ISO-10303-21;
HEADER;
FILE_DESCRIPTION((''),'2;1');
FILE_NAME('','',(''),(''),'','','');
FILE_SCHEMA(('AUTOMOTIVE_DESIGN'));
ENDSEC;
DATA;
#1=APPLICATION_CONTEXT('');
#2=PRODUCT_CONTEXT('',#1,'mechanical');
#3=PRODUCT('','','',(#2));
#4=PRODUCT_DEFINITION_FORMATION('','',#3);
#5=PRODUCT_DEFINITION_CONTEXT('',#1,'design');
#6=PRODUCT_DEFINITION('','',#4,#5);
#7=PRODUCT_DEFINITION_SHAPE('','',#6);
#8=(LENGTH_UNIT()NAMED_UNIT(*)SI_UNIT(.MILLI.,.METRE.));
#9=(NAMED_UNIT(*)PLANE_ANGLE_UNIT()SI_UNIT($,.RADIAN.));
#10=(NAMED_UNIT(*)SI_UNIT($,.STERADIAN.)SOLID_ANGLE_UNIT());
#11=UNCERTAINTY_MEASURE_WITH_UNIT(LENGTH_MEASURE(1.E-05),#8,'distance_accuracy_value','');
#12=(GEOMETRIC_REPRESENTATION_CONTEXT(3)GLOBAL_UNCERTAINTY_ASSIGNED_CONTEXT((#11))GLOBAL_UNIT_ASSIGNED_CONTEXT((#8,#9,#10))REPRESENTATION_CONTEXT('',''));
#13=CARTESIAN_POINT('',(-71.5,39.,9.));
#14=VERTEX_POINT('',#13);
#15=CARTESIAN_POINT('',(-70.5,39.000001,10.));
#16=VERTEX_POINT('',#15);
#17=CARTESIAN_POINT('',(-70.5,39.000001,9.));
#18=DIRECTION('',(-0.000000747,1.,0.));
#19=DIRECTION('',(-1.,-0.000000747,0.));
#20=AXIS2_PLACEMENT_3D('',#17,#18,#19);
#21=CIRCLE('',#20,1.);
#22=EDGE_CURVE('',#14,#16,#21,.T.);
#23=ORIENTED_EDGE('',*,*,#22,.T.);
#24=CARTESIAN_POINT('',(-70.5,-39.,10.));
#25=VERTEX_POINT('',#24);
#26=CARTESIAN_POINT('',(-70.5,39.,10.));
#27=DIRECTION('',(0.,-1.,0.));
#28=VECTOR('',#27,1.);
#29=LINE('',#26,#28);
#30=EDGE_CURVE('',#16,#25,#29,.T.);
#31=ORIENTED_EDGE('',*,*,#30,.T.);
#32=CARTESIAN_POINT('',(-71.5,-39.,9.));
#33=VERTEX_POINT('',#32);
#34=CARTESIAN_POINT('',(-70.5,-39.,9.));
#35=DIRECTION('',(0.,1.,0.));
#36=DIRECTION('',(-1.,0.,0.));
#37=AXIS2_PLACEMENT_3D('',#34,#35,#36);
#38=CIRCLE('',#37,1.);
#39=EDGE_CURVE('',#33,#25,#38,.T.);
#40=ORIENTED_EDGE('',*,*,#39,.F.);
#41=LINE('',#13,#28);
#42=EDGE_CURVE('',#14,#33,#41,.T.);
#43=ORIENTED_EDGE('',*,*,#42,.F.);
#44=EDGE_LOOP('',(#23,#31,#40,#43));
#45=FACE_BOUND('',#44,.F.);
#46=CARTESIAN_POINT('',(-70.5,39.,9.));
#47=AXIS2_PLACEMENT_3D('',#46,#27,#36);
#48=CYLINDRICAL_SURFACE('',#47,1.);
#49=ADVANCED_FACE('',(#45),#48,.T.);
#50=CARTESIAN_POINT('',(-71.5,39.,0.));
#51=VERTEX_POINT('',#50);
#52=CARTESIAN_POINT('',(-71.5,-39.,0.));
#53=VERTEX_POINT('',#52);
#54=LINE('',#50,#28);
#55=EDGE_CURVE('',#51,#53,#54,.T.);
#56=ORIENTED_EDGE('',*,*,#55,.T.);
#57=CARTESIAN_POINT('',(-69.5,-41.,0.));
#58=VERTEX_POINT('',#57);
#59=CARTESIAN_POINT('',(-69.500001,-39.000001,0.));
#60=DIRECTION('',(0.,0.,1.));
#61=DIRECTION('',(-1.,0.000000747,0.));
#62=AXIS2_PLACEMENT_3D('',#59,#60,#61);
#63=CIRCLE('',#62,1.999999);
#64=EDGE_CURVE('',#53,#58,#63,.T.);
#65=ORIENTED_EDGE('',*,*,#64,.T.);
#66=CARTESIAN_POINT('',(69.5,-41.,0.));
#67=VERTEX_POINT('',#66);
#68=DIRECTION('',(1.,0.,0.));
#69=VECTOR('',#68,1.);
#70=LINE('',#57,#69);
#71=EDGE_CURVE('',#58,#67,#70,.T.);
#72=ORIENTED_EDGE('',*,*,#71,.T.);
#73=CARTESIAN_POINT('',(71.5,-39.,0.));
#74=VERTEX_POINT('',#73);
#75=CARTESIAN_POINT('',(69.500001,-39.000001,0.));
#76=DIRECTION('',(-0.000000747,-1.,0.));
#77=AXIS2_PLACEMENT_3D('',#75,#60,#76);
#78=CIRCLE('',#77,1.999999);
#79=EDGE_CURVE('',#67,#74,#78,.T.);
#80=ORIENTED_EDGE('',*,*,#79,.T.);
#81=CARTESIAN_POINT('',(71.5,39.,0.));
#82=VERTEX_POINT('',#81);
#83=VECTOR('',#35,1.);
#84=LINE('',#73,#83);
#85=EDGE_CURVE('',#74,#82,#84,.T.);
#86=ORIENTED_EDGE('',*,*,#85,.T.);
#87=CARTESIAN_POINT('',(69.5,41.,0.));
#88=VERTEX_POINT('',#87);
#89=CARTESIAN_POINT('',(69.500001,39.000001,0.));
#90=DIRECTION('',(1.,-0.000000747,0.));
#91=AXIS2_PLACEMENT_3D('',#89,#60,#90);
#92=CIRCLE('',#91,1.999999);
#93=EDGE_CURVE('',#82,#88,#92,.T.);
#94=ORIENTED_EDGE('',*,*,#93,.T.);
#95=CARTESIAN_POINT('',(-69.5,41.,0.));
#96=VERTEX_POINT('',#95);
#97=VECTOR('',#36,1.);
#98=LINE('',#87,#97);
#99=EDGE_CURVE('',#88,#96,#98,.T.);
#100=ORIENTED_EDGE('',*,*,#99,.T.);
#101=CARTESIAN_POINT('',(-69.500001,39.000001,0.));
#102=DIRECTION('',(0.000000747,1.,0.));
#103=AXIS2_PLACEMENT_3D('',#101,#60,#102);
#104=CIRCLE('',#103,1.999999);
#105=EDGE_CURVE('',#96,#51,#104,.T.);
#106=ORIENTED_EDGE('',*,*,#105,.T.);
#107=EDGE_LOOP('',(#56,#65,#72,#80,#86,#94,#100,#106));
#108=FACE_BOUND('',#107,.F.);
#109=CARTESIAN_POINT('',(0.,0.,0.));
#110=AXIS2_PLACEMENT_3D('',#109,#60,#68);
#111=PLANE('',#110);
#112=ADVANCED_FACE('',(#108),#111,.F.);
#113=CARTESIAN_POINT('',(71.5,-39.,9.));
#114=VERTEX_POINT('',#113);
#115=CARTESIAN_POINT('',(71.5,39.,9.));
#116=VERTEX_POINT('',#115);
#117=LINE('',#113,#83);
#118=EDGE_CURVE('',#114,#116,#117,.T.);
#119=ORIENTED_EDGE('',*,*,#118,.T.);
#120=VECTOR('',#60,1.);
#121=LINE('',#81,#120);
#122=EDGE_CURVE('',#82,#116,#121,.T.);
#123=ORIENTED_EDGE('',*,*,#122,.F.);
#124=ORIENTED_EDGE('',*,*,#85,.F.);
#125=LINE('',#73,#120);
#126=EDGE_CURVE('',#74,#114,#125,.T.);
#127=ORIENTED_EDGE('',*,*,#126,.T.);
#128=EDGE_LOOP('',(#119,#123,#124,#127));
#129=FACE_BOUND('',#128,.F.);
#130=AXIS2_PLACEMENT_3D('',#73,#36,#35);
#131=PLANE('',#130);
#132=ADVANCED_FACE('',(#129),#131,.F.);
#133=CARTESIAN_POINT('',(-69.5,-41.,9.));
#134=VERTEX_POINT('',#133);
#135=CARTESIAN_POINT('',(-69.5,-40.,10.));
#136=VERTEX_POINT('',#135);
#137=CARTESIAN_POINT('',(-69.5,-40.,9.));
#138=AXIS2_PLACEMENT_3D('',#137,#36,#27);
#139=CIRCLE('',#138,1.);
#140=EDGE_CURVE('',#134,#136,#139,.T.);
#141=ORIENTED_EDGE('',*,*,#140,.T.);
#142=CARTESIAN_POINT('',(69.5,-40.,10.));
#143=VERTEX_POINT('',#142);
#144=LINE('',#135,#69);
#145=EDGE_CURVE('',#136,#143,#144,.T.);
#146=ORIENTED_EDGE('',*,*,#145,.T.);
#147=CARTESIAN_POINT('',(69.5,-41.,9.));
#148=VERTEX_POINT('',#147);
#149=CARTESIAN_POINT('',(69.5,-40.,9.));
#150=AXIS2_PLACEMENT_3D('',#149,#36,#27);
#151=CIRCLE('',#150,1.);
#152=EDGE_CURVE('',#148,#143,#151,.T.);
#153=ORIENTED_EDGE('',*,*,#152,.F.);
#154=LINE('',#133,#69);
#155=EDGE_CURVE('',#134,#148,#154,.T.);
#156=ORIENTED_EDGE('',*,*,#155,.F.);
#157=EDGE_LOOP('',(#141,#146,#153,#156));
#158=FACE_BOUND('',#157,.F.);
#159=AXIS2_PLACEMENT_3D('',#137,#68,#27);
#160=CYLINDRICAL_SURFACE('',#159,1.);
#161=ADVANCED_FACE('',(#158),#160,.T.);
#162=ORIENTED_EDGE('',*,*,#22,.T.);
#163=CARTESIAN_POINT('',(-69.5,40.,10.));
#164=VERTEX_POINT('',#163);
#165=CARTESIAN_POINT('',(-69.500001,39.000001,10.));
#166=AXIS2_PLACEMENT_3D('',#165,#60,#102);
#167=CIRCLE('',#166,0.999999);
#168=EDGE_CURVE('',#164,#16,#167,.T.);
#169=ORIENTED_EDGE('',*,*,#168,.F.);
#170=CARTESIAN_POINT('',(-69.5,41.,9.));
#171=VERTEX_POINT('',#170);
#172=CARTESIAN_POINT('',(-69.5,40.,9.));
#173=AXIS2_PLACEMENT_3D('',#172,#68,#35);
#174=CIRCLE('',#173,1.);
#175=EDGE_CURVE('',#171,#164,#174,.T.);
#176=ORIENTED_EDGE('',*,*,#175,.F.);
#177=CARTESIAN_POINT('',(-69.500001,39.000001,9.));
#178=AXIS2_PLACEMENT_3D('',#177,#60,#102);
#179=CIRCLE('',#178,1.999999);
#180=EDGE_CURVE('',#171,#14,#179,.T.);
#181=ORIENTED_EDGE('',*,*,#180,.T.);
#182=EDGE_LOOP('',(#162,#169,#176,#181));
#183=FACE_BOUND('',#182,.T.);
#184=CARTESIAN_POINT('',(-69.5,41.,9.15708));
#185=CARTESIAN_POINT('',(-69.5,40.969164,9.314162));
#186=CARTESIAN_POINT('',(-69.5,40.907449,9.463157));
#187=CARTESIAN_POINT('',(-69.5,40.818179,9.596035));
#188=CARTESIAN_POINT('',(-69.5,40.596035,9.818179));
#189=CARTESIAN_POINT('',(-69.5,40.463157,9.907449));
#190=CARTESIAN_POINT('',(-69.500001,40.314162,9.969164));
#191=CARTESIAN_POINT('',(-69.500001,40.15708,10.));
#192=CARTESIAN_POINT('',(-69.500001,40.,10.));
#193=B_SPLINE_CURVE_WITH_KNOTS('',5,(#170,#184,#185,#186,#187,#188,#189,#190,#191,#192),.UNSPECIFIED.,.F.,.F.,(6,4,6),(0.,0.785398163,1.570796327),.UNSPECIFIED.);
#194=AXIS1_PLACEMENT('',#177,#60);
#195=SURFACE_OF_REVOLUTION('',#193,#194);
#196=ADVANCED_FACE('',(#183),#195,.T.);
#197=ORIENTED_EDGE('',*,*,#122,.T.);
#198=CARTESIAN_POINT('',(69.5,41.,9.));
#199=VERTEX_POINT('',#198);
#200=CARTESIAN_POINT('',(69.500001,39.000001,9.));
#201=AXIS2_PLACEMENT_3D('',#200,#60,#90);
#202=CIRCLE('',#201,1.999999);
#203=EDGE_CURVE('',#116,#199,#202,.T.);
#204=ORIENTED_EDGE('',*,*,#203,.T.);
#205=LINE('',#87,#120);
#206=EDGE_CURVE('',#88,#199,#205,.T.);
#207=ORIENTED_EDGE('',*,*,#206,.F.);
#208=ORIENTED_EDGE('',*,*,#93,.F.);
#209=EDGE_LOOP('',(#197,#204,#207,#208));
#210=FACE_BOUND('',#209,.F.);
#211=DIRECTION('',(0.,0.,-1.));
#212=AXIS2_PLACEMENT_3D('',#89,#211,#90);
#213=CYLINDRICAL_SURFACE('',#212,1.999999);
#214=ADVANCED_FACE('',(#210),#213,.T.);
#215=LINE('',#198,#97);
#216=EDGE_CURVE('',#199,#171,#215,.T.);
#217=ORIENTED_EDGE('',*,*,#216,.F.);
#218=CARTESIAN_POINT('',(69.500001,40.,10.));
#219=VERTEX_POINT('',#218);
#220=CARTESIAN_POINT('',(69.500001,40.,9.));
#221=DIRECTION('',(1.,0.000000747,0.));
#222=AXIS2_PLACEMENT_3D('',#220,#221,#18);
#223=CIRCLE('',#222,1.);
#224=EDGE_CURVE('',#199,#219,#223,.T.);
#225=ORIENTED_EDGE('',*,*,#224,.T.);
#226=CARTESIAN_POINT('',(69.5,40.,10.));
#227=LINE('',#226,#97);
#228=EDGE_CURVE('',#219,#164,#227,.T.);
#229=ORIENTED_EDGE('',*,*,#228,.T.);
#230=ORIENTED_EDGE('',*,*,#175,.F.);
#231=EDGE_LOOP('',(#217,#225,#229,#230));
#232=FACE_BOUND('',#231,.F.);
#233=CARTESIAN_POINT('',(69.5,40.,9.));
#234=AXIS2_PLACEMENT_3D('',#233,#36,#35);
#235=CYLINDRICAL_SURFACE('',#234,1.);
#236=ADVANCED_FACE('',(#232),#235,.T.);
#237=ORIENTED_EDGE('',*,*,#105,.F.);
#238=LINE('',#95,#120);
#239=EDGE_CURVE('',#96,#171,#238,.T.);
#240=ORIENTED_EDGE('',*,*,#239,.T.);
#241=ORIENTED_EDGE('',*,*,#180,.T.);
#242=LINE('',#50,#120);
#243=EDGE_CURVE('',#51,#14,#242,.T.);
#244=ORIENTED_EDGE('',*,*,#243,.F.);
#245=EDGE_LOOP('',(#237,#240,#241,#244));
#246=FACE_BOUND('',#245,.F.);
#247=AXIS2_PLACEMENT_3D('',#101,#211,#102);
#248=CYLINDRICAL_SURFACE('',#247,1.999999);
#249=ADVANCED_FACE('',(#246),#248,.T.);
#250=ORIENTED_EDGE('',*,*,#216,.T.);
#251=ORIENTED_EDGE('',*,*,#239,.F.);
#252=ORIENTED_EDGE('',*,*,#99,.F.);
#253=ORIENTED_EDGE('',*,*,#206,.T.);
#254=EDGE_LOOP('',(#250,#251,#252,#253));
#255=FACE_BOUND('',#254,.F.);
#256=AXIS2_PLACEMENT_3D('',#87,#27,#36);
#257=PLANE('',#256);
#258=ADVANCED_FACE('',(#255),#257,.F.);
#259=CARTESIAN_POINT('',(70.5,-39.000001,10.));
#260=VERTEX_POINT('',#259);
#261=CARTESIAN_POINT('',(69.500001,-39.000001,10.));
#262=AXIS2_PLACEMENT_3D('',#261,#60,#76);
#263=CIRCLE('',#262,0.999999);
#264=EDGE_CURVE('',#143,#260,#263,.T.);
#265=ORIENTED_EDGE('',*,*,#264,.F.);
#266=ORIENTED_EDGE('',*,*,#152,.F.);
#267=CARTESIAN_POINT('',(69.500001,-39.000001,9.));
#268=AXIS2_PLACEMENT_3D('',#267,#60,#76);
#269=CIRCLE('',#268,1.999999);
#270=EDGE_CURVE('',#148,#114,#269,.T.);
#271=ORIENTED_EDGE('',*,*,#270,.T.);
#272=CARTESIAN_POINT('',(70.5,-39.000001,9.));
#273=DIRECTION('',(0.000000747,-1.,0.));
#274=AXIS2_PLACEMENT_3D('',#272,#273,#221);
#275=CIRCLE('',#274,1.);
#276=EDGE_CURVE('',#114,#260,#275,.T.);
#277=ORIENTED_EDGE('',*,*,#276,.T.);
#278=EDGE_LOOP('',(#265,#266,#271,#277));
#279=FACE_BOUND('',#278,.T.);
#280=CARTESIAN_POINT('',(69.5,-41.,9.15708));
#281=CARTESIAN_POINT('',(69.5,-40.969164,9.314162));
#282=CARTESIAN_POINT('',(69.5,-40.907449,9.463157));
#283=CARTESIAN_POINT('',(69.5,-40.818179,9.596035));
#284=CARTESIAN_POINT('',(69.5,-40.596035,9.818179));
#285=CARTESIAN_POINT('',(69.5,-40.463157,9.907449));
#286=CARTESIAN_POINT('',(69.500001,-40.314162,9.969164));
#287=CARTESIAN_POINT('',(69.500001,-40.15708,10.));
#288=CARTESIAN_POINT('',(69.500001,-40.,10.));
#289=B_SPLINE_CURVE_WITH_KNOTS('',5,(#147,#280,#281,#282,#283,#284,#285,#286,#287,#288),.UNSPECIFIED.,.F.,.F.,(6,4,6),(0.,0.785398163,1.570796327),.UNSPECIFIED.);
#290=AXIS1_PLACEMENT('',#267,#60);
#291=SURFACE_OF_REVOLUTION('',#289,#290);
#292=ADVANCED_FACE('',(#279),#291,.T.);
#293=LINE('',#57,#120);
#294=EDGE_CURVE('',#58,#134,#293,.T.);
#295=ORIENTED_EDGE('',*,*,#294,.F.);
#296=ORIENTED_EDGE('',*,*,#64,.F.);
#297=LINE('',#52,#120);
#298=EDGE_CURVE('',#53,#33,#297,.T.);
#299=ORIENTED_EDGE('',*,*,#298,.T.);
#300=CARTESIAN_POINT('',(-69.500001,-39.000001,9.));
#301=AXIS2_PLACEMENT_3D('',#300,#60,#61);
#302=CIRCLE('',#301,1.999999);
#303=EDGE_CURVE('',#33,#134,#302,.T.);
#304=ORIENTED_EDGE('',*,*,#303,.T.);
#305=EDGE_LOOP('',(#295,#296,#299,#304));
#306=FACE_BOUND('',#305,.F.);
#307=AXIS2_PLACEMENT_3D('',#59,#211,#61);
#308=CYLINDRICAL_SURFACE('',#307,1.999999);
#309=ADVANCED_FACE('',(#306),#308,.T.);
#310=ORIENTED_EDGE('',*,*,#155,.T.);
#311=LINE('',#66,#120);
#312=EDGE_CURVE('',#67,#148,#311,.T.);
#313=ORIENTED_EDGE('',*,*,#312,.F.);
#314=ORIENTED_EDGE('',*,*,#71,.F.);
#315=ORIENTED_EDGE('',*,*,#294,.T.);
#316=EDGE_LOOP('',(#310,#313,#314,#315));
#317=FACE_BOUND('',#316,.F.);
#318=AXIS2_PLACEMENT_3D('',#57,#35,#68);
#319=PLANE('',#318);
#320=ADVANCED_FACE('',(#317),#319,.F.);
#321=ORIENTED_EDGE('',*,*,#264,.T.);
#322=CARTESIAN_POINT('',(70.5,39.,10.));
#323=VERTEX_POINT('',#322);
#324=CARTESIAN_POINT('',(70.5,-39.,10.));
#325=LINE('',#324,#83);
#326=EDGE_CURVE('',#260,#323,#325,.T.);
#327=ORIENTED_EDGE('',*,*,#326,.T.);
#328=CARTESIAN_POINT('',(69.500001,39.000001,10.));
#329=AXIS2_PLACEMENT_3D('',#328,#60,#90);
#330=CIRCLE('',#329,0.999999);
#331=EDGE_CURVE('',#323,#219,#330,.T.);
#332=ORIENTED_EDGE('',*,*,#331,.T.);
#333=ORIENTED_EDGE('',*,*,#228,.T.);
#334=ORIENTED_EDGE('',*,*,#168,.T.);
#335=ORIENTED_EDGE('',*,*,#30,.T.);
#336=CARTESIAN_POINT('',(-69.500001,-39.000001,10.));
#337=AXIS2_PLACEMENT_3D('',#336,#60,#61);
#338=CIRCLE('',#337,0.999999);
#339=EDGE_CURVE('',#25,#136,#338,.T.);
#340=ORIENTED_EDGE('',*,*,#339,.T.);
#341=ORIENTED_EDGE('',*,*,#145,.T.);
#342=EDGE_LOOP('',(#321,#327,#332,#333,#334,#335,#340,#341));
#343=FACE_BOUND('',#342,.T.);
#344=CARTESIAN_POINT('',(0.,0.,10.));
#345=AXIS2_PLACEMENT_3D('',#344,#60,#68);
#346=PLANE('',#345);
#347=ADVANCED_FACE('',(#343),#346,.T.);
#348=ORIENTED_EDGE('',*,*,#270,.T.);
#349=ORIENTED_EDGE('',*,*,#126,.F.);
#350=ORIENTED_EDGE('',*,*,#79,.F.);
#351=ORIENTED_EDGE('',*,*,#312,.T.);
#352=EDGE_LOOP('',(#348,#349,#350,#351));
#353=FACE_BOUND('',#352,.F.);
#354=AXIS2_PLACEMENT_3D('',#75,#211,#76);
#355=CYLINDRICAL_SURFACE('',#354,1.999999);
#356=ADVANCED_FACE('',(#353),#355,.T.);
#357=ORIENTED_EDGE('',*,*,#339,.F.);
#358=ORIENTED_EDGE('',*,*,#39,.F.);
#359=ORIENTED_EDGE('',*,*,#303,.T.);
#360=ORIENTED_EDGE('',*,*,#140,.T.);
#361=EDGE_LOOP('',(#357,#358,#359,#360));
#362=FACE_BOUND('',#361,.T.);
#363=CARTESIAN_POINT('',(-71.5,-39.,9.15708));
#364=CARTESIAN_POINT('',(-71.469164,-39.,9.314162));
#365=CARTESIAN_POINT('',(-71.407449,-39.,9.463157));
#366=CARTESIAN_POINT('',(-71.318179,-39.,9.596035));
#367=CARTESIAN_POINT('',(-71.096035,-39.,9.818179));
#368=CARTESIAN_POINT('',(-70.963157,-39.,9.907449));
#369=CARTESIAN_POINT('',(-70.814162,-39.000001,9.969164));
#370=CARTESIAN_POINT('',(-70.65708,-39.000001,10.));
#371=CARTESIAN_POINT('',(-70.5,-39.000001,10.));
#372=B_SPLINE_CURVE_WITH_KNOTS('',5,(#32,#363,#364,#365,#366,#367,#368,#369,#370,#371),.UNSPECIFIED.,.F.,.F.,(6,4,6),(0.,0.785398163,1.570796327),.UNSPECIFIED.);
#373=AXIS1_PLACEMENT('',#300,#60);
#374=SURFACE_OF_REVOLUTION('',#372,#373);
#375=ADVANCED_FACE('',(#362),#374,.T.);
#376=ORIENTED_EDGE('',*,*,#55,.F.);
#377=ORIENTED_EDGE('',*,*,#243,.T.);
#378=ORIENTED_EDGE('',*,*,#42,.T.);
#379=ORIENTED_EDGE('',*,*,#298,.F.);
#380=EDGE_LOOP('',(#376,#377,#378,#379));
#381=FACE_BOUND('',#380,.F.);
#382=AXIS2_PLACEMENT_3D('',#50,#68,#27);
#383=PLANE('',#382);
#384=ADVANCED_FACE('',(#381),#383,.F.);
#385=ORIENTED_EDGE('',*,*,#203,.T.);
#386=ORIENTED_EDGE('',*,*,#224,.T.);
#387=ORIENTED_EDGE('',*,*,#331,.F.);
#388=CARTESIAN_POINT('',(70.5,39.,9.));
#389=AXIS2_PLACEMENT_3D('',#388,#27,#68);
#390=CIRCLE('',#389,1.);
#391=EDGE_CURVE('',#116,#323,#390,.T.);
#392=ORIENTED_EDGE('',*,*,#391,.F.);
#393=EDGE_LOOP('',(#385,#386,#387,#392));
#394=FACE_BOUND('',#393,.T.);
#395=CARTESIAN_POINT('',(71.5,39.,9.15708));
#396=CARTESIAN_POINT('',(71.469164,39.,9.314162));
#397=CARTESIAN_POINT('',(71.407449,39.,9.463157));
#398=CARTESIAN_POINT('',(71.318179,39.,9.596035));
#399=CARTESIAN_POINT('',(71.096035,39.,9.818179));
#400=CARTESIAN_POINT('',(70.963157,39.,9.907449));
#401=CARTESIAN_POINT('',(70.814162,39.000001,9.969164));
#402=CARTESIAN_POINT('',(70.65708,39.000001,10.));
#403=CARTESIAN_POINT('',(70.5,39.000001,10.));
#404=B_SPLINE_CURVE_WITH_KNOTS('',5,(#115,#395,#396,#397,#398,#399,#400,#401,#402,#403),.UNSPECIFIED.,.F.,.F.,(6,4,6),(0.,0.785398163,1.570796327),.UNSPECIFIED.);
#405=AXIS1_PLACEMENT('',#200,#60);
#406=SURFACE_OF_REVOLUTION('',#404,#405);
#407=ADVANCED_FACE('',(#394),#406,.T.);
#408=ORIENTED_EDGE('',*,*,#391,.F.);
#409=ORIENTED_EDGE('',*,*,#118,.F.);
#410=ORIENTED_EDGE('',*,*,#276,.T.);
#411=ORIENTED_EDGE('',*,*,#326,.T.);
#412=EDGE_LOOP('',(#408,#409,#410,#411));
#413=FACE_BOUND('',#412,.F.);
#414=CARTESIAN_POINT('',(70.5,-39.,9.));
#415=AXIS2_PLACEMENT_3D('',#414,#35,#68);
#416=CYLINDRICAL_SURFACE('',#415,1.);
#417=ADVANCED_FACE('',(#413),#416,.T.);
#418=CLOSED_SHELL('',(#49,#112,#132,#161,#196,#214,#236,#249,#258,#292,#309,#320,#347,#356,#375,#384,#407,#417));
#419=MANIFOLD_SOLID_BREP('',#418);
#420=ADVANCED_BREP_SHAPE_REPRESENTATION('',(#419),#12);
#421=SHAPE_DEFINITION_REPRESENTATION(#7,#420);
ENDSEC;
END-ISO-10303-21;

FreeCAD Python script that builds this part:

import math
import FreeCAD as App
import Part
import Sketcher
from FreeCAD import Vector
Q = App.Units.Quantity


def edges_at(feature, points):
    """Names of the edges that pass closest to the given points."""
    edges = feature.Shape.Edges
    near = lambda p: min(range(len(edges)), key=lambda i: edges[i].distToShape(Part.Vertex(*p))[0])
    return sorted({f"Edge{near(p) + 1}" for p in points})

doc = App.newDocument("Part")
body = doc.addObject("PartDesign::Body", "Body")

# Sketch on XY plane
sketch1 = body.newObject("Sketcher::SketchObject", "Sketch")
sketch1.AttachmentSupport = (doc.getObject("XY_Plane"), [""])
sketch1.MapMode = "FlatFace"
sketch1.addGeometry(Part.LineSegment(Vector(69.5, 41, 0), Vector(-69.5, 41, 0)), False)
sketch1.addGeometry(Part.ArcOfCircle(Part.Circle(Vector(-69.5, 39, 0), Vector(0, 0, 1), 2), math.radians(90), math.radians(180)), False)
sketch1.addGeometry(Part.LineSegment(Vector(-71.5, 39, 0), Vector(-71.5, -39, 0)), False)
sketch1.addGeometry(Part.ArcOfCircle(Part.Circle(Vector(-69.5, -39, 0), Vector(0, 0, 1), 2), math.radians(180), math.radians(270)), False)
sketch1.addGeometry(Part.LineSegment(Vector(-69.5, -41, 0), Vector(69.5, -41, 0)), False)
sketch1.addGeometry(Part.ArcOfCircle(Part.Circle(Vector(69.5, -39, 0), Vector(0, 0, 1), 2), math.radians(-90), math.radians(0)), False)
sketch1.addGeometry(Part.LineSegment(Vector(71.5, -39, 0), Vector(71.5, 39, 0)), False)
sketch1.addGeometry(Part.ArcOfCircle(Part.Circle(Vector(69.5, 39, 0), Vector(0, 0, 1), 2), math.radians(0), math.radians(90)), False)
sketch1.addConstraint(Sketcher.Constraint("Tangent", 0, 2, 1, 1))
sketch1.addConstraint(Sketcher.Constraint("Tangent", 1, 2, 2, 1))
sketch1.addConstraint(Sketcher.Constraint("Tangent", 2, 2, 3, 1))
sketch1.addConstraint(Sketcher.Constraint("Tangent", 3, 2, 4, 1))
sketch1.addConstraint(Sketcher.Constraint("Tangent", 4, 2, 5, 1))
sketch1.addConstraint(Sketcher.Constraint("Tangent", 5, 2, 6, 1))
sketch1.addConstraint(Sketcher.Constraint("Tangent", 6, 2, 7, 1))
sketch1.addConstraint(Sketcher.Constraint("Tangent", 7, 2, 0, 1))
sketch1.addConstraint(Sketcher.Constraint("Horizontal", 0))
sketch1.addConstraint(Sketcher.Constraint("Vertical", 2))
sketch1.addConstraint(Sketcher.Constraint("Horizontal", 4))
sketch1.addConstraint(Sketcher.Constraint("Vertical", 6))
sketch1.addConstraint(Sketcher.Constraint("Equal", 1, 3))
sketch1.addConstraint(Sketcher.Constraint("Equal", 3, 5))
sketch1.addConstraint(Sketcher.Constraint("Equal", 5, 7))
sketch1.addConstraint(Sketcher.Constraint("Symmetric", 1, 3, 5, 3, -1, 1))
sketch1.addConstraint(Sketcher.Constraint("Radius", 1, Q("1.999999 mm")))
sketch1.addConstraint(Sketcher.Constraint("DistanceX", 0, 2, 0, 1, Q("139 mm")))
sketch1.addConstraint(Sketcher.Constraint("DistanceY", 2, 2, 2, 1, Q("78 mm")))
pad1 = body.newObject("PartDesign::Pad", "Pad")
pad1.Profile = sketch1
pad1.Length = 10
doc.recompute()

fillet = body.newObject("PartDesign::Fillet", "Fillet")
fillet.Base = (pad1, edges_at(pad1, [(0, -41, 10)]))
fillet.Radius = 1

doc.recompute()
